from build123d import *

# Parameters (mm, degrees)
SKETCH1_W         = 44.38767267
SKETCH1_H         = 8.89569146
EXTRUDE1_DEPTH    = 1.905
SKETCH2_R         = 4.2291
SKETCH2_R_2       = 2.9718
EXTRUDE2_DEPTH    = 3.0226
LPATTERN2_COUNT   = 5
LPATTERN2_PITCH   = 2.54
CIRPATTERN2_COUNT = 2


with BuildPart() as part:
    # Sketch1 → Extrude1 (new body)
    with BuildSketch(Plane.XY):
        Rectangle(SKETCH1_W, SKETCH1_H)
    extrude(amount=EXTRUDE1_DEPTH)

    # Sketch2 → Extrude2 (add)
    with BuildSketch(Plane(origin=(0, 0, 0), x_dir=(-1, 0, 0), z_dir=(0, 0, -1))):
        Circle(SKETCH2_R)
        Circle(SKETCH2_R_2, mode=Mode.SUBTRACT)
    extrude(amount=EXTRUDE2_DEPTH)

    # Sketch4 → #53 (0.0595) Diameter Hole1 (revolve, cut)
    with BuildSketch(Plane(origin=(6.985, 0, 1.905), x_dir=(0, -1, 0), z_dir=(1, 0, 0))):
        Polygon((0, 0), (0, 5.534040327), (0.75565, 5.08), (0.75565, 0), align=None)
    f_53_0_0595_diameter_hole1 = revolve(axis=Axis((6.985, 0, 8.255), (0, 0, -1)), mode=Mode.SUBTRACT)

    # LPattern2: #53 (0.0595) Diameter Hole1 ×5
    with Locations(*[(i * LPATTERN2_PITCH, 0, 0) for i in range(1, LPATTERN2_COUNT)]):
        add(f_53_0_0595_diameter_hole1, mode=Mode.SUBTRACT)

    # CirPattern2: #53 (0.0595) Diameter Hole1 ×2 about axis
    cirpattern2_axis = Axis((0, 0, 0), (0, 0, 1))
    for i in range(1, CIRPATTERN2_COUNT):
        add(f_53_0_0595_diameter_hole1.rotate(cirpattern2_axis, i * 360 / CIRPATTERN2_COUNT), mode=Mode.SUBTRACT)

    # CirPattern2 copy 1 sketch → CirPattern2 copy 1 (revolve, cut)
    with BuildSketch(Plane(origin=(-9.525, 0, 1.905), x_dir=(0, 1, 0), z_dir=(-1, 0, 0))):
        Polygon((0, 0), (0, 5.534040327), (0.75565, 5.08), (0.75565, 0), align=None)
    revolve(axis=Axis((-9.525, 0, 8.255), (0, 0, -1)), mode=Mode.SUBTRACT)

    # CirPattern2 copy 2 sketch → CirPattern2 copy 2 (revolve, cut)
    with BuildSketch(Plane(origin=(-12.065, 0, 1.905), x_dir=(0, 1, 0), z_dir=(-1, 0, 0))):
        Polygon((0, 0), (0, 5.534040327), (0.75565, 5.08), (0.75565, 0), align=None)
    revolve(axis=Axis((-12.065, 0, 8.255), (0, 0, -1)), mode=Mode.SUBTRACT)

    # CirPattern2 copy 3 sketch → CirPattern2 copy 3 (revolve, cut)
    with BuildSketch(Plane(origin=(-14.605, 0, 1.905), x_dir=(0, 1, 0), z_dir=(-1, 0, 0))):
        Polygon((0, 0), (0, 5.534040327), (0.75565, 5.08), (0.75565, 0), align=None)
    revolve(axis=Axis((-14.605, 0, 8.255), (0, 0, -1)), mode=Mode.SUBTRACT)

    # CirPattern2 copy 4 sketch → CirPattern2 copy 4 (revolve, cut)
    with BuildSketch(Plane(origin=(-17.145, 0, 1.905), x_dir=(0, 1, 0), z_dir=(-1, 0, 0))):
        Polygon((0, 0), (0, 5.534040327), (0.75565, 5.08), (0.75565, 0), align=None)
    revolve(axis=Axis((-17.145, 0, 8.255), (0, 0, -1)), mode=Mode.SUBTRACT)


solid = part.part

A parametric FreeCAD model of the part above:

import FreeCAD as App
import Part
import Sketcher
Q = App.Units.Quantity

doc = App.newDocument("Part")
body = doc.addObject("PartDesign::Body", "Body")

sketch1 = body.newObject("Sketcher::SketchObject", "Sketch")
sketch1.AttachmentSupport = (doc.getObject("XY_Plane"), [""])
sketch1.MapMode = "FlatFace"
sketch1.addGeometry([
    Part.LineSegment(App.Vector(-22, 4, 0), App.Vector(-22, -4, 0)),
    Part.LineSegment(App.Vector(-22, -4, 0), App.Vector(22, -4, 0)),
    Part.LineSegment(App.Vector(22, -4, 0), App.Vector(22, 4, 0)),
    Part.LineSegment(App.Vector(22, 4, 0), App.Vector(-22, 4, 0)),
], False)
sketch1.addConstraint([
    Sketcher.Constraint("Coincident", 0, 2, 1, 1),
    Sketcher.Constraint("Coincident", 1, 2, 2, 1),
    Sketcher.Constraint("Coincident", 2, 2, 3, 1),
    Sketcher.Constraint("Coincident", 3, 2, 0, 1),
    Sketcher.Constraint("Vertical", 0),
    Sketcher.Constraint("Horizontal", 1),
    Sketcher.Constraint("Vertical", 2),
    Sketcher.Constraint("Horizontal", 3),
    Sketcher.Constraint("Symmetric", 0, 2, 2, 2, -1, 1),
    Sketcher.Constraint("DistanceY", 0, 2, 0, 1, 8.895691),
    Sketcher.Constraint("DistanceX", 1, 1, 1, 2, 44.387673),
])
pad1 = body.newObject("PartDesign::Pad", "Pad")
pad1.Profile = sketch1
pad1.Length = Q("0.075 in")

sketch2 = body.newObject("Sketcher::SketchObject", "Sketch001")
sketch2.AttachmentSupport = (doc.getObject("XY_Plane"), [""])
sketch2.MapMode = "FlatFace"
sketch2.addGeometry([
    Part.Circle(App.Vector(0, 0, 0), App.Vector(0, 0, 1), 4.2),
    Part.Circle(App.Vector(0, 0, 0), App.Vector(0, 0, 1), 3),
], False)
sketch2.addConstraint([
    Sketcher.Constraint("Coincident", 0, 3, -1, 1),
    Sketcher.Constraint("Coincident", 1, 3, -1, 1),
    Sketcher.Constraint("Diameter", 0, Q("0.333 in")),
    Sketcher.Constraint("Diameter", 1, Q("0.234 in")),
])
pad2 = body.newObject("PartDesign::Pad", "Pad001")
pad2.Profile = sketch2
pad2.Length = Q("0.119 in")
pad2.Reversed = True

sketch3 = body.newObject("Sketcher::SketchObject", "Sketch002")
sketch3.AttachmentSupport = (doc.getObject("YZ_Plane"), [""])
sketch3.MapMode = "FlatFace"
sketch3.AttachmentOffset = App.Placement(App.Vector(0, 0, 0.275 * 25.4), App.Rotation())
sketch3.addGeometry([
    Part.LineSegment(App.Vector(0, -3.6, 0), App.Vector(0, 1.9, 0)),
    Part.LineSegment(App.Vector(0, 1.9, 0), App.Vector(-0.8, 1.9, 0)),
    Part.LineSegment(App.Vector(-0.8, 1.9, 0), App.Vector(-0.8, -3.2, 0)),
    Part.LineSegment(App.Vector(-0.8, -3.2, 0), App.Vector(0, -3.6, 0)),
], False)
sketch3.addConstraint([
    Sketcher.Constraint("Coincident", 0, 2, 1, 1),
    Sketcher.Constraint("Coincident", 1, 2, 2, 1),
    Sketcher.Constraint("Coincident", 2, 2, 3, 1),
    Sketcher.Constraint("Coincident", 3, 2, 0, 1),
    Sketcher.Constraint("Vertical", 0),
    Sketcher.Constraint("Horizontal", 1),
    Sketcher.Constraint("Vertical", 2),
    Sketcher.Constraint("PointOnObject", 0, 2, -2),
    Sketcher.Constraint("DistanceY", 2, 2, 2, 1, Q("0.2 in")),
    Sketcher.Constraint("Angle", 3, Q("-31 deg")),
    Sketcher.Constraint("DistanceY", -1, 1, 0, 2, Q("0.075 in")),
    Sketcher.Constraint("DistanceX", 1, 2, 1, 1, 0.75565),
])
groove = body.newObject("PartDesign::Groove", "Groove")
groove.Profile = sketch3
groove.ReferenceAxis = (sketch3, ["V_Axis"])
groove.Angle = 360
doc.recompute()

linearpattern = body.newObject("PartDesign::LinearPattern", "LinearPattern")
linearpattern.Originals = [groove]
linearpattern.Direction = (doc.getObject("X_Axis"), [""])
linearpattern.Mode = "offset"
linearpattern.Offset = Q("0.1 in")
linearpattern.Occurrences = 5
body.Tip = linearpattern
doc.recompute()

polarpattern = body.newObject("PartDesign::PolarPattern", "PolarPattern")
polarpattern.Originals = [groove]
polarpattern.Axis = (doc.getObject("Z_Axis"), [""])
polarpattern.Angle = 360
polarpattern.Occurrences = 2
body.Tip = polarpattern

sketch4 = body.newObject("Sketcher::SketchObject", "Sketch003")
sketch4.AttachmentSupport = (doc.getObject("YZ_Plane"), [""])
sketch4.MapMode = "FlatFace"
sketch4.AttachmentOffset = App.Placement(App.Vector(0, 0, -0.375 * 25.4), App.Rotation())
sketch4.addGeometry([
    Part.LineSegment(App.Vector(0, -3.6, 0), App.Vector(0, 1.9, 0)),
    Part.LineSegment(App.Vector(0, 1.9, 0), App.Vector(0.8, 1.9, 0)),
    Part.LineSegment(App.Vector(0.8, 1.9, 0), App.Vector(0.8, -3.2, 0)),
    Part.LineSegment(App.Vector(0.8, -3.2, 0), App.Vector(0, -3.6, 0)),
], False)
sketch4.addConstraint([
    Sketcher.Constraint("Coincident", 0, 2, 1, 1),
    Sketcher.Constraint("Coincident", 1, 2, 2, 1),
    Sketcher.Constraint("Coincident", 2, 2, 3, 1),
    Sketcher.Constraint("Coincident", 3, 2, 0, 1),
    Sketcher.Constraint("Vertical", 0),
    Sketcher.Constraint("Horizontal", 1),
    Sketcher.Constraint("Vertical", 2),
    Sketcher.Constraint("PointOnObject", 0, 2, -2),
    Sketcher.Constraint("DistanceY", 2, 2, 2, 1, Q("0.2 in")),
    Sketcher.Constraint("Angle", 3, Q("-149 deg")),
    Sketcher.Constraint("DistanceY", -1, 1, 0, 2, Q("0.075 in")),
    Sketcher.Constraint("DistanceX", 1, 1, 1, 2, 0.75565),
])
groove2 = body.newObject("PartDesign::Groove", "Groove001")
groove2.Profile = sketch4
groove2.ReferenceAxis = (sketch4, ["V_Axis"])
groove2.Angle = 360

sketch5 = body.newObject("Sketcher::SketchObject", "Sketch004")
sketch5.AttachmentSupport = (doc.getObject("YZ_Plane"), [""])
sketch5.MapMode = "FlatFace"
sketch5.AttachmentOffset = App.Placement(App.Vector(0, 0, -0.475 * 25.4), App.Rotation())
sketch5.addGeometry([
    Part.LineSegment(App.Vector(0, -3.6, 0), App.Vector(0, 1.9, 0)),
    Part.LineSegment(App.Vector(0, 1.9, 0), App.Vector(0.8, 1.9, 0)),
    Part.LineSegment(App.Vector(0.8, 1.9, 0), App.Vector(0.8, -3.2, 0)),
    Part.LineSegment(App.Vector(0.8, -3.2, 0), App.Vector(0, -3.6, 0)),
], False)
sketch5.addConstraint([
    Sketcher.Constraint("Coincident", 0, 2, 1, 1),
    Sketcher.Constraint("Coincident", 1, 2, 2, 1),
    Sketcher.Constraint("Coincident", 2, 2, 3, 1),
    Sketcher.Constraint("Coincident", 3, 2, 0, 1),
    Sketcher.Constraint("Vertical", 0),
    Sketcher.Constraint("Horizontal", 1),
    Sketcher.Constraint("Vertical", 2),
    Sketcher.Constraint("PointOnObject", 0, 2, -2),
    Sketcher.Constraint("DistanceY", 2, 2, 2, 1, Q("0.2 in")),
    Sketcher.Constraint("Angle", 3, Q("-149 deg")),
    Sketcher.Constraint("DistanceY", -1, 1, 0, 2, Q("0.075 in")),
    Sketcher.Constraint("DistanceX", 1, 1, 1, 2, 0.75565),
])
groove3 = body.newObject("PartDesign::Groove", "Groove002")
groove3.Profile = sketch5
groove3.ReferenceAxis = (sketch5, ["V_Axis"])
groove3.Angle = 360

sketch6 = body.newObject("Sketcher::SketchObject", "Sketch005")
sketch6.AttachmentSupport = (doc.getObject("YZ_Plane"), [""])
sketch6.MapMode = "FlatFace"
sketch6.AttachmentOffset = App.Placement(App.Vector(0, 0, -0.575 * 25.4), App.Rotation())
sketch6.addGeometry([
    Part.LineSegment(App.Vector(0, -3.6, 0), App.Vector(0, 1.9, 0)),
    Part.LineSegment(App.Vector(0, 1.9, 0), App.Vector(0.8, 1.9, 0)),
    Part.LineSegment(App.Vector(0.8, 1.9, 0), App.Vector(0.8, -3.2, 0)),
    Part.LineSegment(App.Vector(0.8, -3.2, 0), App.Vector(0, -3.6, 0)),
], False)
sketch6.addConstraint([
    Sketcher.Constraint("Coincident", 0, 2, 1, 1),
    Sketcher.Constraint("Coincident", 1, 2, 2, 1),
    Sketcher.Constraint("Coincident", 2, 2, 3, 1),
    Sketcher.Constraint("Coincident", 3, 2, 0, 1),
    Sketcher.Constraint("Vertical", 0),
    Sketcher.Constraint("Horizontal", 1),
    Sketcher.Constraint("Vertical", 2),
    Sketcher.Constraint("PointOnObject", 0, 2, -2),
    Sketcher.Constraint("DistanceY", 2, 2, 2, 1, Q("0.2 in")),
    Sketcher.Constraint("Angle", 3, Q("-149 deg")),
    Sketcher.Constraint("DistanceY", -1, 1, 0, 2, Q("0.075 in")),
    Sketcher.Constraint("DistanceX", 1, 1, 1, 2, 0.75565),
])
groove4 = body.newObject("PartDesign::Groove", "Groove003")
groove4.Profile = sketch6
groove4.ReferenceAxis = (sketch6, ["V_Axis"])
groove4.Angle = 360

sketch7 = body.newObject("Sketcher::SketchObject", "Sketch006")
sketch7.AttachmentSupport = (doc.getObject("YZ_Plane"), [""])
sketch7.MapMode = "FlatFace"
sketch7.AttachmentOffset = App.Placement(App.Vector(0, 0, -0.675 * 25.4), App.Rotation())
sketch7.addGeometry([
    Part.LineSegment(App.Vector(0, -3.6, 0), App.Vector(0, 1.9, 0)),
    Part.LineSegment(App.Vector(0, 1.9, 0), App.Vector(0.8, 1.9, 0)),
    Part.LineSegment(App.Vector(0.8, 1.9, 0), App.Vector(0.8, -3.2, 0)),
    Part.LineSegment(App.Vector(0.8, -3.2, 0), App.Vector(0, -3.6, 0)),
], False)
sketch7.addConstraint([
    Sketcher.Constraint("Coincident", 0, 2, 1, 1),
    Sketcher.Constraint("Coincident", 1, 2, 2, 1),
    Sketcher.Constraint("Coincident", 2, 2, 3, 1),
    Sketcher.Constraint("Coincident", 3, 2, 0, 1),
    Sketcher.Constraint("Vertical", 0),
    Sketcher.Constraint("Horizontal", 1),
    Sketcher.Constraint("Vertical", 2),
    Sketcher.Constraint("PointOnObject", 0, 2, -2),
    Sketcher.Constraint("DistanceY", 2, 2, 2, 1, Q("0.2 in")),
    Sketcher.Constraint("Angle", 3, Q("-149 deg")),
    Sketcher.Constraint("DistanceY", -1, 1, 0, 2, Q("0.075 in")),
    Sketcher.Constraint("DistanceX", 1, 1, 1, 2, 0.75565),
])
groove5 = body.newObject("PartDesign::Groove", "Groove004")
groove5.Profile = sketch7
groove5.ReferenceAxis = (sketch7, ["V_Axis"])
groove5.Angle = 360

doc.recompute()
